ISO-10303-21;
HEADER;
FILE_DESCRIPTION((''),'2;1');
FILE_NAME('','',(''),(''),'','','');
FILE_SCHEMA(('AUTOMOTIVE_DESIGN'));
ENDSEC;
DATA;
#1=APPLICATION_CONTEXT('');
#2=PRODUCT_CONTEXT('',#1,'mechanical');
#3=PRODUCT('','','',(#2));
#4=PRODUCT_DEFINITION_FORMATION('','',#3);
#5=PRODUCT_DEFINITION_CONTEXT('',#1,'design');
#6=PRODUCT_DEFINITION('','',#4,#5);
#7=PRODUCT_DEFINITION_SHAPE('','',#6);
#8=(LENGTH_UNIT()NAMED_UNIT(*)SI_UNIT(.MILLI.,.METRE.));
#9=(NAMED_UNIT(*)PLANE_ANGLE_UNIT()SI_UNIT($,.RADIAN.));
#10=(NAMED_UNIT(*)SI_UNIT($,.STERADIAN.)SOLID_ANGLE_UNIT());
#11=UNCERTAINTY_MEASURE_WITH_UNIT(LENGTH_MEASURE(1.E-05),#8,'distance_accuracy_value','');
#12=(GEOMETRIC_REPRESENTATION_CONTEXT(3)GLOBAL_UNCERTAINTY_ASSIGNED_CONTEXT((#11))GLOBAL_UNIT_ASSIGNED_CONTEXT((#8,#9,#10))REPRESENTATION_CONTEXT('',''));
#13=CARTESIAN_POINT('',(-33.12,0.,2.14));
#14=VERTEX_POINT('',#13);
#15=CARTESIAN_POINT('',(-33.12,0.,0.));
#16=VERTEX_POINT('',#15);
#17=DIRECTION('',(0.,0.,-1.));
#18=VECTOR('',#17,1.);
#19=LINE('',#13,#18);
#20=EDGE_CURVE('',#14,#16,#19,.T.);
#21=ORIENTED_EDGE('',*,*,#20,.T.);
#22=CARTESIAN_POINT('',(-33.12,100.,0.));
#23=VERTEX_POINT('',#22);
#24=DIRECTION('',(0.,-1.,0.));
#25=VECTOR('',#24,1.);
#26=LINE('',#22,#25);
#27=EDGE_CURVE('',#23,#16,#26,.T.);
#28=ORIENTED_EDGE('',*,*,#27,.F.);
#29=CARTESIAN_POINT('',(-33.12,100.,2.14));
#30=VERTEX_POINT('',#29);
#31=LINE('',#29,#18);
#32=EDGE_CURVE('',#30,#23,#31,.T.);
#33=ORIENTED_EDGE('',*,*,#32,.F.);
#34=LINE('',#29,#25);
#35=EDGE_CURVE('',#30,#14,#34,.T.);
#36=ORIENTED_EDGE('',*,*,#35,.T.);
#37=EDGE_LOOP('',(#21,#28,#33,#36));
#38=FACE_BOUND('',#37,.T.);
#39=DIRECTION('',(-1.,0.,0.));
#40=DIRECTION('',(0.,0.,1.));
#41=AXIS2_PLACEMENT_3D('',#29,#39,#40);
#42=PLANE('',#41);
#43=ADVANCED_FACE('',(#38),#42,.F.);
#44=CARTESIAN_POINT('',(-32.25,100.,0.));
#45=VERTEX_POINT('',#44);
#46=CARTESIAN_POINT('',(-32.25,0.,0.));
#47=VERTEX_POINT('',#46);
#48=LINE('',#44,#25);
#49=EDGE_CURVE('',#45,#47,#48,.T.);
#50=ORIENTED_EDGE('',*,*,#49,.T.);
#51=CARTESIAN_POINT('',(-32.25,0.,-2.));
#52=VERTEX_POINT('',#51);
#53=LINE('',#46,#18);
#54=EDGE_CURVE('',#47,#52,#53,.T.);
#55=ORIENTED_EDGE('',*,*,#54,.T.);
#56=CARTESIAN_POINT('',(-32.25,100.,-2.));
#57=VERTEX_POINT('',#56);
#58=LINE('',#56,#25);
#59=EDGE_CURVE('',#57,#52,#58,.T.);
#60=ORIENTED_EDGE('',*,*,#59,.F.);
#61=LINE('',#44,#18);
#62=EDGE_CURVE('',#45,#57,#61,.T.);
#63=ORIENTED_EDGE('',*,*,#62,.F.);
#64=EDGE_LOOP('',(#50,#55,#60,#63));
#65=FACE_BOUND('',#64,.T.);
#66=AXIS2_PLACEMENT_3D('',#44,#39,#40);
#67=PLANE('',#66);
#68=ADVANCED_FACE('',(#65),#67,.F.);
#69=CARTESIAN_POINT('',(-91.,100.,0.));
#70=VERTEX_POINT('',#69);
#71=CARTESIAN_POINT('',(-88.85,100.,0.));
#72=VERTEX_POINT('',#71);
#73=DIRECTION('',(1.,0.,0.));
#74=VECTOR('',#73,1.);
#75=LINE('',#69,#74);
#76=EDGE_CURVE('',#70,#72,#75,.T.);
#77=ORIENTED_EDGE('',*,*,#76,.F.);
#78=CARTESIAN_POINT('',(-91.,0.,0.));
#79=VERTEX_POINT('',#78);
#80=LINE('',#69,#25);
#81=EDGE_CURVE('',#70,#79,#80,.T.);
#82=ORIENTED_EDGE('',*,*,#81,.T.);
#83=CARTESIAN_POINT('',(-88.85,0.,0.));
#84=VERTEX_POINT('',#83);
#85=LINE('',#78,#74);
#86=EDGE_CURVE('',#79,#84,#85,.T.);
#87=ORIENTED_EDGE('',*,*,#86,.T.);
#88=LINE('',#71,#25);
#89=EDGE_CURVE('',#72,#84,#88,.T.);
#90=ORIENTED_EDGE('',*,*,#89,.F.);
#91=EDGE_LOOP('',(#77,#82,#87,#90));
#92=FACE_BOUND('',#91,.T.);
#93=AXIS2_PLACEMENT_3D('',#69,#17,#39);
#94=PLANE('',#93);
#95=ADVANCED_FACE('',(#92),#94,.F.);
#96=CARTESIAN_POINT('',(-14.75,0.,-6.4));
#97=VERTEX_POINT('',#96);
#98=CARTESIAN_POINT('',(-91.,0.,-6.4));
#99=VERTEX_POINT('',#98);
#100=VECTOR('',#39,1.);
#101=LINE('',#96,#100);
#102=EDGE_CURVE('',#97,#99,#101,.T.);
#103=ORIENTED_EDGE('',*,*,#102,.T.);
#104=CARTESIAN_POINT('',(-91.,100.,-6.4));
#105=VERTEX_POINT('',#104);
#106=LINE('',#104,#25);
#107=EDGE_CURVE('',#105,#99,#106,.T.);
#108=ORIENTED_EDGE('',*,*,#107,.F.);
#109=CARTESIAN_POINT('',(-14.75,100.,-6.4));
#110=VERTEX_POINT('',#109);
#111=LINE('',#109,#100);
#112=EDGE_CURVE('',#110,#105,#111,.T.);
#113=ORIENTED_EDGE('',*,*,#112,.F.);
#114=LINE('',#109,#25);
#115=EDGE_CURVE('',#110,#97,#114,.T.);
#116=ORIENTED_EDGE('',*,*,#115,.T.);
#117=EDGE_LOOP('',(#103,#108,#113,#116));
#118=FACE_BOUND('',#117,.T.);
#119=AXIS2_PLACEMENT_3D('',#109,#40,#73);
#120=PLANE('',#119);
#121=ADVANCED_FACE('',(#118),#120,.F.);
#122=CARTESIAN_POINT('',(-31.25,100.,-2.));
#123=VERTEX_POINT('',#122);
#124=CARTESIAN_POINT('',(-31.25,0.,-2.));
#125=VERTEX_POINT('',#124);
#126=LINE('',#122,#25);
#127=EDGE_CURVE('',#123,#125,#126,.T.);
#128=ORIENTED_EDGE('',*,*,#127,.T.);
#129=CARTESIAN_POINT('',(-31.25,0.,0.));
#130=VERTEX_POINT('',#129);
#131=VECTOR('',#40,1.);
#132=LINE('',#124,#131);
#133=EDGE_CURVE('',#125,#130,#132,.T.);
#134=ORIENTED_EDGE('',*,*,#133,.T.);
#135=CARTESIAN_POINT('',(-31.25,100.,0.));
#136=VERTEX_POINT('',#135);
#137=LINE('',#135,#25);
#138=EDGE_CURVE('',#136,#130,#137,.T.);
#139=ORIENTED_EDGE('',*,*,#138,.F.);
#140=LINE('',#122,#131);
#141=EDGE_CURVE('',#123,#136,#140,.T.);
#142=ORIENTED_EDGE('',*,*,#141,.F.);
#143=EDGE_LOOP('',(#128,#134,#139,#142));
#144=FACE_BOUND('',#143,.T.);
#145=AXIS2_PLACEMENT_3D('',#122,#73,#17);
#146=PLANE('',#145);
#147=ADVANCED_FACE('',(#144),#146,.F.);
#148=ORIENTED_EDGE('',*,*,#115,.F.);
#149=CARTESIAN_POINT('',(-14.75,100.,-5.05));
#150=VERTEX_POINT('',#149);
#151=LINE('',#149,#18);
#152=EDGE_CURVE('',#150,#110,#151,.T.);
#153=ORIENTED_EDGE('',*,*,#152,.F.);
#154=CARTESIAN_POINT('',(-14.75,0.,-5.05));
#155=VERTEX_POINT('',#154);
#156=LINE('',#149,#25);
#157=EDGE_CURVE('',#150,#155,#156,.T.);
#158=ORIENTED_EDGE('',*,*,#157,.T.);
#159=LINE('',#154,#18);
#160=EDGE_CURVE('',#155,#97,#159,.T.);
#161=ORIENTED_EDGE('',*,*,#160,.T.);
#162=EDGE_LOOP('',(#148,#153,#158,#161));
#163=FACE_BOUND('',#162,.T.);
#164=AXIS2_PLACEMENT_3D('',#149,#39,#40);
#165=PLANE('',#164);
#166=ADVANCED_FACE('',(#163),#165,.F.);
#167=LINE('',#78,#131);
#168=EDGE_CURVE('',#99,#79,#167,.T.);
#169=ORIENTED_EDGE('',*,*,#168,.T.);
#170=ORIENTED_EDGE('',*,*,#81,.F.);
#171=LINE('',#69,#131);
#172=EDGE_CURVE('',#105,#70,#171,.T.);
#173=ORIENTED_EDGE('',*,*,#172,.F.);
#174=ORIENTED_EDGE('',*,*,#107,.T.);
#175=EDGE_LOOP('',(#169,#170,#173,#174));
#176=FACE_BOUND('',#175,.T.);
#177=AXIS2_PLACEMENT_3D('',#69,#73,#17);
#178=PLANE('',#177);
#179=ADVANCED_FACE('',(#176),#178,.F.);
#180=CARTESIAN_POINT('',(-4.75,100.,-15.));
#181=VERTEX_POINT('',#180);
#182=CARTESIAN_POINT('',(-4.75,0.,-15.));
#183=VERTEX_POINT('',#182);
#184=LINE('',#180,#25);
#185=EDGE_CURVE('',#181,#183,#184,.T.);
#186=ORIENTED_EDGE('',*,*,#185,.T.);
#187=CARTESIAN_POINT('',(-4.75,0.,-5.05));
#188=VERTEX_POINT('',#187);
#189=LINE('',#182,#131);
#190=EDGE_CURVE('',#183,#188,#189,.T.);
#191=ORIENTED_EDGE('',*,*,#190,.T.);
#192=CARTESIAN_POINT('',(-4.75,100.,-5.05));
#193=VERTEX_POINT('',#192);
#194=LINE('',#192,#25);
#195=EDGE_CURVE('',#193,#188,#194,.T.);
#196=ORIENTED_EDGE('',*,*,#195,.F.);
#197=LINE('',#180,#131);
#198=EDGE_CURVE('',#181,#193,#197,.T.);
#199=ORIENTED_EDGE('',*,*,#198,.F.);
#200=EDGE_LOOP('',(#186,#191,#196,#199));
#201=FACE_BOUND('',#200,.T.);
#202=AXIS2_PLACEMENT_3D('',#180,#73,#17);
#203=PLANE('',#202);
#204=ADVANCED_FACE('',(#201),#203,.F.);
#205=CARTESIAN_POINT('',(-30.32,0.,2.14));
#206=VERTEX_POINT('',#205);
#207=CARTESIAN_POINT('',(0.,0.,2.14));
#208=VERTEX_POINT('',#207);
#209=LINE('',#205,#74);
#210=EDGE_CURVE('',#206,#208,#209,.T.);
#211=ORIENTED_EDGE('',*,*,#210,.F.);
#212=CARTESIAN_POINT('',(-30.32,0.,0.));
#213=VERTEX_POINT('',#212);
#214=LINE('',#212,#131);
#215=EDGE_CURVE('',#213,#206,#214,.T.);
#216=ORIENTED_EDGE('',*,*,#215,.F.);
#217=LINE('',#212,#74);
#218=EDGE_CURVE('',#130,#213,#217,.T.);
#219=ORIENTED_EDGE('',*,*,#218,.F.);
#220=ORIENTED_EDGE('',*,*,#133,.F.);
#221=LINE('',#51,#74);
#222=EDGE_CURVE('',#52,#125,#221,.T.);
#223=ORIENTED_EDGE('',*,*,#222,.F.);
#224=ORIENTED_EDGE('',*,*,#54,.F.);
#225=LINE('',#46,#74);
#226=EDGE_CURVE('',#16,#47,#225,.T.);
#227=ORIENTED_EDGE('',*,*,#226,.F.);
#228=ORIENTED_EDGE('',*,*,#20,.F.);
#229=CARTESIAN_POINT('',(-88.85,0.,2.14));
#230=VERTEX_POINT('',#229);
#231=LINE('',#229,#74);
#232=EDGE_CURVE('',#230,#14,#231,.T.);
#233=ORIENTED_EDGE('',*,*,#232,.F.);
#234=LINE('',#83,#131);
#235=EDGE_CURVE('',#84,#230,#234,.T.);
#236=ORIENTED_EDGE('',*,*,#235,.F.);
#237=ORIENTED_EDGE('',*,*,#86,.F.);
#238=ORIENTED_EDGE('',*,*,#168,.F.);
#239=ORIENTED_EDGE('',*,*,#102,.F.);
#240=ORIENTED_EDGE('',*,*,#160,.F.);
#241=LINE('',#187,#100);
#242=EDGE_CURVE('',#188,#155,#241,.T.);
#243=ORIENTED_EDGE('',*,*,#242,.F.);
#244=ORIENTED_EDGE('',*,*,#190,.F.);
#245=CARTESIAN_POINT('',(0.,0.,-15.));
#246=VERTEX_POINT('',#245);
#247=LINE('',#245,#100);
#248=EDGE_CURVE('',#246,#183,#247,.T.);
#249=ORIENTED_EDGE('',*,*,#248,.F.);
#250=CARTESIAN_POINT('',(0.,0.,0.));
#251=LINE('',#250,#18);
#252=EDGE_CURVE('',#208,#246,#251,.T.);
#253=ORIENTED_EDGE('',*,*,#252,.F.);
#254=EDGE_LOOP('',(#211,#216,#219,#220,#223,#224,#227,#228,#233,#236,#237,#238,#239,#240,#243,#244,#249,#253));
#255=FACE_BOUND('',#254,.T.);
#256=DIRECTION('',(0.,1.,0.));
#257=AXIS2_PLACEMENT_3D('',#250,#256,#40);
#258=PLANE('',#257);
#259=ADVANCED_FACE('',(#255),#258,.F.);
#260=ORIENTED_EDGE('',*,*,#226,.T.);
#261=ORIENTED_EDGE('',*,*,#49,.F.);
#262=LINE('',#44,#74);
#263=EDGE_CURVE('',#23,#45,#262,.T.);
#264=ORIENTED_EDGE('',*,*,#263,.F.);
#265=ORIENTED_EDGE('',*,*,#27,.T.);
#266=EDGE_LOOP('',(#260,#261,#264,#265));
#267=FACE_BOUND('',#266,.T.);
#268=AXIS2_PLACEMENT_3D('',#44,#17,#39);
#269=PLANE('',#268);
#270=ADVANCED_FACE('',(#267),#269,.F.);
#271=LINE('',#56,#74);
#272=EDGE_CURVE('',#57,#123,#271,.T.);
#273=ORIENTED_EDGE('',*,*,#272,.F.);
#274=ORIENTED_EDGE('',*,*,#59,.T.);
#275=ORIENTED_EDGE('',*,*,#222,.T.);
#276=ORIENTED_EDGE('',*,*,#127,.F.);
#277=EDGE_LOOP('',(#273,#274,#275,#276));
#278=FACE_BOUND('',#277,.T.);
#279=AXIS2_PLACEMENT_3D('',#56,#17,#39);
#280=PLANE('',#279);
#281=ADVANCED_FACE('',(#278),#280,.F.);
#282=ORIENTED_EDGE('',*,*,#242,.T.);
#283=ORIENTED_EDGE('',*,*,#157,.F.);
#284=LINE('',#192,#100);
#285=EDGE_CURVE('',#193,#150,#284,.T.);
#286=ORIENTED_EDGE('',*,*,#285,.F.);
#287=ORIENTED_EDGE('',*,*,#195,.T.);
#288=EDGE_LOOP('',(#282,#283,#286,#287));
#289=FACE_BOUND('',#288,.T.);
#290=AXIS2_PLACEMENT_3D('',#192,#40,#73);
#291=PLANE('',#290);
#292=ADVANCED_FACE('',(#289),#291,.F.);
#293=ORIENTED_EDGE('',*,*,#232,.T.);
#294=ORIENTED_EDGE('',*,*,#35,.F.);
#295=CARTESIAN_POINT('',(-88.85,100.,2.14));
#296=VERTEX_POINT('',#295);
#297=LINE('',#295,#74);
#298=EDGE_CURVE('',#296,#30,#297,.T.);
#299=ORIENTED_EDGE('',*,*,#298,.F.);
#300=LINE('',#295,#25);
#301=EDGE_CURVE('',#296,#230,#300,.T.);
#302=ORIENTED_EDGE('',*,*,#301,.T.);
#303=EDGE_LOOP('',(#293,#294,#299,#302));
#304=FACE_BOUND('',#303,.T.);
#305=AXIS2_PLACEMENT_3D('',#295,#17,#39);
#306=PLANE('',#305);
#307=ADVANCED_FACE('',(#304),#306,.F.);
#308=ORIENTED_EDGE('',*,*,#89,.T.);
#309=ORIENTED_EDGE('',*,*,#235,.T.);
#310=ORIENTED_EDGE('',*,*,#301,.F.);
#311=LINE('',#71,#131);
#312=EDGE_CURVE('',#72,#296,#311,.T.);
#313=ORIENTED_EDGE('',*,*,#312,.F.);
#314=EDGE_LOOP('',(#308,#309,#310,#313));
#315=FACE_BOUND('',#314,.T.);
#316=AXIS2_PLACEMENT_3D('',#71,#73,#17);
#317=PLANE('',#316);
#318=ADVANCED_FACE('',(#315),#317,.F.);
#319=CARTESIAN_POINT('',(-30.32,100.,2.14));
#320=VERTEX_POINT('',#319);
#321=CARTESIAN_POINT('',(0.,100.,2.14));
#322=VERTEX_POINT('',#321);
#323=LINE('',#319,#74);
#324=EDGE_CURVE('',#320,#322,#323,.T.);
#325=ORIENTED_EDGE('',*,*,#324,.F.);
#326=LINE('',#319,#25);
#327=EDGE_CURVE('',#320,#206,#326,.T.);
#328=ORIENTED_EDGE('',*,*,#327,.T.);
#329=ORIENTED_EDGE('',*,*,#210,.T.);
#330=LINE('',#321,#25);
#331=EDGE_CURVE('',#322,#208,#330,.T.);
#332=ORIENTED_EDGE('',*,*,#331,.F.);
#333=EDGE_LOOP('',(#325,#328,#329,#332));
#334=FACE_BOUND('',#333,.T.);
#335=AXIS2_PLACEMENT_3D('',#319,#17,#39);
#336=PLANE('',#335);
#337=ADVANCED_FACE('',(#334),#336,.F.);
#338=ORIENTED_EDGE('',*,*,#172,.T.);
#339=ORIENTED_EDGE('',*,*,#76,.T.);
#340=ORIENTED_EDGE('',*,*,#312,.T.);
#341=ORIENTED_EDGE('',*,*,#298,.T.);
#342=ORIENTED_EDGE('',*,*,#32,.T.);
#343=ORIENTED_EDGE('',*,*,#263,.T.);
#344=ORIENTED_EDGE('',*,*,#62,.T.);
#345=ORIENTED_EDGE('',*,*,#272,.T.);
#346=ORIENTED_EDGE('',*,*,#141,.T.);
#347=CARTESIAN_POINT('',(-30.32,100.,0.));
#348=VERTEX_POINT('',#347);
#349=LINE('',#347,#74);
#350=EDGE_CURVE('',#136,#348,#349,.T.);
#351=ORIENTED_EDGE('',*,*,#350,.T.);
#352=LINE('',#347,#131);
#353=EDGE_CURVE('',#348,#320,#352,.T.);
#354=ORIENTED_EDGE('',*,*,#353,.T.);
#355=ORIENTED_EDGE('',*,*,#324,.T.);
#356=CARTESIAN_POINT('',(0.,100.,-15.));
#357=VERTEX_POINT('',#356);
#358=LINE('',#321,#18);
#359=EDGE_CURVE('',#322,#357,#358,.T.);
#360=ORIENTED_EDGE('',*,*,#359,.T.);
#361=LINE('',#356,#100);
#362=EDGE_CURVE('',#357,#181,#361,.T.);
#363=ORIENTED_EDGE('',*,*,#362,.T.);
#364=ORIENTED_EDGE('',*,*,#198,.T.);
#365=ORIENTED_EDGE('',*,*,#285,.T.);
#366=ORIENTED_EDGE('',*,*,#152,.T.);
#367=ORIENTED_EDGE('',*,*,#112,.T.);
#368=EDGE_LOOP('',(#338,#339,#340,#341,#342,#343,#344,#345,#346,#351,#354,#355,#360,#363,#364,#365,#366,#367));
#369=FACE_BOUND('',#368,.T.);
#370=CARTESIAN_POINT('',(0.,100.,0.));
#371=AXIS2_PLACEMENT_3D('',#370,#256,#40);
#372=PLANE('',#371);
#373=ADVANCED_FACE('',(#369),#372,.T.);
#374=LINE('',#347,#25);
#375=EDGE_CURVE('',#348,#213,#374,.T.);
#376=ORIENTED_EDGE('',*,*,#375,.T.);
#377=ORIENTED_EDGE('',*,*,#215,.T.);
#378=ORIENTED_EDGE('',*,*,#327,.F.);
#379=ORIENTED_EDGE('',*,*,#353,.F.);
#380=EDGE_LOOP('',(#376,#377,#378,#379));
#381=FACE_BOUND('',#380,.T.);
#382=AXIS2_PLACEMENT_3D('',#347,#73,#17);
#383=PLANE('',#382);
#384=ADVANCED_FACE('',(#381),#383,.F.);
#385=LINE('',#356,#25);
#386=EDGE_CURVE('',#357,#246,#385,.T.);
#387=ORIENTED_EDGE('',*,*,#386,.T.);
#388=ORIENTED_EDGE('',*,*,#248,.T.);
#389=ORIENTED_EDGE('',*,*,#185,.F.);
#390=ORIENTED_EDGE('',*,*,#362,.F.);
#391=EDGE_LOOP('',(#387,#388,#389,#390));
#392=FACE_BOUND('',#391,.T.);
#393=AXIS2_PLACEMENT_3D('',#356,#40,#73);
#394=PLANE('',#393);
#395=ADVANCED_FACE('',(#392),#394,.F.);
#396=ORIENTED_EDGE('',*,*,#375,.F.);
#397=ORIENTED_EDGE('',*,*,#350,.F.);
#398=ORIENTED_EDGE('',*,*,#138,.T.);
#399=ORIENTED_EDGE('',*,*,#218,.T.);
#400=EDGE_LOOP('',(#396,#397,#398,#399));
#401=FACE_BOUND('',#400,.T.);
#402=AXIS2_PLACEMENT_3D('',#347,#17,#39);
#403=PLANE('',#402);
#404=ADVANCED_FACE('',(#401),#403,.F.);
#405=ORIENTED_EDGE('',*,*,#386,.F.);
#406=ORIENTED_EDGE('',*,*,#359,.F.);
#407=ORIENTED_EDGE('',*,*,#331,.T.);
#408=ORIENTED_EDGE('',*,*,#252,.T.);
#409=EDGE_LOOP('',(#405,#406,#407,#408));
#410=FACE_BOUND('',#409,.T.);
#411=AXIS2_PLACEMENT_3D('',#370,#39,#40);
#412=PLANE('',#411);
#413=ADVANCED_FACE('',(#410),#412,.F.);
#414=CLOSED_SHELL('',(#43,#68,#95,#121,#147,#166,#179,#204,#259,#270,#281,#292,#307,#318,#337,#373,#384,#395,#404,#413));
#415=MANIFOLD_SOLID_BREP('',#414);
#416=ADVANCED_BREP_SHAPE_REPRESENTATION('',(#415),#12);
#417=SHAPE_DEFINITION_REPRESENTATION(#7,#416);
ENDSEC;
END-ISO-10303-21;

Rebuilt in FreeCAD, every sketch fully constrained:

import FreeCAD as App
import Part
import Sketcher

doc = App.newDocument("Part")
params = doc.addObject("Spreadsheet::Sheet", "Params")
for row, (alias, value) in enumerate([
    ("sketch1_width", "10 mm"),
    ("sketch1_width2", "1 mm"),
    ("sketch1_height", "2 mm"),
    ("sketch1_height2", "6.4 mm"),
    ("sketch1_width3", "76.25 mm"),
    ("pad1_length", "100 mm"),
], start=1):
    params.set(f"A{row}", alias)
    params.set(f"B{row}", "=" + value)
    params.setAlias(f"B{row}", alias)

body = doc.addObject("PartDesign::Body", "Body")

sketch1 = body.newObject("Sketcher::SketchObject", "Sketch")
sketch1.AttachmentSupport = (doc.getObject("XZ_Plane"), [""])
sketch1.MapMode = "FlatFace"
sketch1.addGeometry([
    Part.LineSegment(App.Vector(-4.8, -15, 0), App.Vector(-4.8, -5, 0)),
    Part.LineSegment(App.Vector(-4.8, -5, 0), App.Vector(-14.8, -5, 0)),
    Part.LineSegment(App.Vector(-14.8, -5, 0), App.Vector(-14.8, -6.4, 0)),
    Part.LineSegment(App.Vector(-14.8, -6.4, 0), App.Vector(-91, -6.4, 0)),
    Part.LineSegment(App.Vector(-91, -6.4, 0), App.Vector(-91, 0, 0)),
    Part.LineSegment(App.Vector(-91, 0, 0), App.Vector(-88.8, 0, 0)),
    Part.LineSegment(App.Vector(-88.8, 0, 0), App.Vector(-88.8, 2.1, 0)),
    Part.LineSegment(App.Vector(-88.8, 2.1, 0), App.Vector(-33.1, 2.1, 0)),
    Part.LineSegment(App.Vector(-33.1, 2.1, 0), App.Vector(-33.1, 0, 0)),
    Part.LineSegment(App.Vector(-33.1, 0, 0), App.Vector(-32.2, 0, 0)),
    Part.LineSegment(App.Vector(-32.2, 0, 0), App.Vector(-32.2, -2, 0)),
    Part.LineSegment(App.Vector(-32.2, -2, 0), App.Vector(-31.2, -2, 0)),
    Part.LineSegment(App.Vector(-31.2, -2, 0), App.Vector(-31.2, 0, 0)),
    Part.LineSegment(App.Vector(-31.2, 0, 0), App.Vector(-30.3, 0, 0)),
    Part.LineSegment(App.Vector(-30.3, 0, 0), App.Vector(-30.3, 2.1, 0)),
    Part.LineSegment(App.Vector(-30.3, 2.1, 0), App.Vector(0, 2.1, 0)),
    Part.LineSegment(App.Vector(0, 2.1, 0), App.Vector(0, -15, 0)),
    Part.LineSegment(App.Vector(0, -15, 0), App.Vector(-4.8, -15, 0)),
], False)
sketch1.addConstraint([
    Sketcher.Constraint("Coincident", 0, 2, 1, 1),
    Sketcher.Constraint("Coincident", 1, 2, 2, 1),
    Sketcher.Constraint("Coincident", 2, 2, 3, 1),
    Sketcher.Constraint("Coincident", 3, 2, 4, 1),
    Sketcher.Constraint("Coincident", 4, 2, 5, 1),
    Sketcher.Constraint("Coincident", 5, 2, 6, 1),
    Sketcher.Constraint("Coincident", 6, 2, 7, 1),
    Sketcher.Constraint("Coincident", 7, 2, 8, 1),
    Sketcher.Constraint("Coincident", 8, 2, 9, 1),
    Sketcher.Constraint("Coincident", 9, 2, 10, 1),
    Sketcher.Constraint("Coincident", 10, 2, 11, 1),
    Sketcher.Constraint("Coincident", 11, 2, 12, 1),
    Sketcher.Constraint("Coincident", 12, 2, 13, 1),
    Sketcher.Constraint("Coincident", 13, 2, 14, 1),
    Sketcher.Constraint("Coincident", 14, 2, 15, 1),
    Sketcher.Constraint("Coincident", 15, 2, 16, 1),
    Sketcher.Constraint("Coincident", 16, 2, 17, 1),
    Sketcher.Constraint("Coincident", 17, 2, 0, 1),
    Sketcher.Constraint("Vertical", 0),
    Sketcher.Constraint("Horizontal", 1),
    Sketcher.Constraint("Vertical", 2),
    Sketcher.Constraint("Horizontal", 3),
    Sketcher.Constraint("Vertical", 4),
    Sketcher.Constraint("Horizontal", 5),
    Sketcher.Constraint("Vertical", 6),
    Sketcher.Constraint("Horizontal", 7),
    Sketcher.Constraint("Vertical", 8),
    Sketcher.Constraint("Horizontal", 9),
    Sketcher.Constraint("Vertical", 10),
    Sketcher.Constraint("Horizontal", 11),
    Sketcher.Constraint("Vertical", 12),
    Sketcher.Constraint("Horizontal", 13),
    Sketcher.Constraint("Vertical", 14),
    Sketcher.Constraint("Horizontal", 15),
    Sketcher.Constraint("Vertical", 16),
    Sketcher.Constraint("Horizontal", 17),
    Sketcher.Constraint("PointOnObject", 4, 2, -1),
    Sketcher.Constraint("PointOnObject", 8, 2, -1),
    Sketcher.Constraint("PointOnObject", 12, 2, -1),
    Sketcher.Constraint("PointOnObject", 15, 2, -2),
    Sketcher.Constraint("Horizontal", 7, 2, 14, 2),
    Sketcher.Constraint("DistanceX", 1, 2, 1, 1, 10.0),
    Sketcher.Constraint("DistanceX", 11, 1, 11, 2, 1.0),
    Sketcher.Constraint("DistanceY", 10, 2, 10, 1, 2.0),
    Sketcher.Constraint("DistanceY", 4, 1, 4, 2, 6.4),
    Sketcher.Constraint("DistanceX", 3, 2, -1, 1, 91.0),
    Sketcher.Constraint("DistanceY", 16, 2, -1, 1, 15.0),
    Sketcher.Constraint("DistanceX", 3, 2, 3, 1, 76.25),
    Sketcher.Constraint("DistanceX", 5, 1, 5, 2, 2.15),
    Sketcher.Constraint("DistanceX", 7, 1, 7, 2, 55.73),
    Sketcher.Constraint("DistanceX", 9, 1, 9, 2, 0.87),
    Sketcher.Constraint("DistanceX", 13, 1, 13, 2, 0.93),
    Sketcher.Constraint("DistanceY", 0, 1, 0, 2, 9.95),
    Sketcher.Constraint("DistanceY", 6, 1, 6, 2, 2.14),
])
sketch1.setExpression("Constraints[41]", "Params.sketch1_width")
sketch1.setExpression("Constraints[42]", "Params.sketch1_width2")
sketch1.setExpression("Constraints[43]", "Params.sketch1_height")
sketch1.setExpression("Constraints[44]", "Params.sketch1_height2")
sketch1.setExpression("Constraints[47]", "Params.sketch1_width3")
pad1 = body.newObject("PartDesign::Pad", "Pad")
pad1.Profile = sketch1
pad1.setExpression("Length", "Params.pad1_length")
pad1.Reversed = True

doc.recompute()
